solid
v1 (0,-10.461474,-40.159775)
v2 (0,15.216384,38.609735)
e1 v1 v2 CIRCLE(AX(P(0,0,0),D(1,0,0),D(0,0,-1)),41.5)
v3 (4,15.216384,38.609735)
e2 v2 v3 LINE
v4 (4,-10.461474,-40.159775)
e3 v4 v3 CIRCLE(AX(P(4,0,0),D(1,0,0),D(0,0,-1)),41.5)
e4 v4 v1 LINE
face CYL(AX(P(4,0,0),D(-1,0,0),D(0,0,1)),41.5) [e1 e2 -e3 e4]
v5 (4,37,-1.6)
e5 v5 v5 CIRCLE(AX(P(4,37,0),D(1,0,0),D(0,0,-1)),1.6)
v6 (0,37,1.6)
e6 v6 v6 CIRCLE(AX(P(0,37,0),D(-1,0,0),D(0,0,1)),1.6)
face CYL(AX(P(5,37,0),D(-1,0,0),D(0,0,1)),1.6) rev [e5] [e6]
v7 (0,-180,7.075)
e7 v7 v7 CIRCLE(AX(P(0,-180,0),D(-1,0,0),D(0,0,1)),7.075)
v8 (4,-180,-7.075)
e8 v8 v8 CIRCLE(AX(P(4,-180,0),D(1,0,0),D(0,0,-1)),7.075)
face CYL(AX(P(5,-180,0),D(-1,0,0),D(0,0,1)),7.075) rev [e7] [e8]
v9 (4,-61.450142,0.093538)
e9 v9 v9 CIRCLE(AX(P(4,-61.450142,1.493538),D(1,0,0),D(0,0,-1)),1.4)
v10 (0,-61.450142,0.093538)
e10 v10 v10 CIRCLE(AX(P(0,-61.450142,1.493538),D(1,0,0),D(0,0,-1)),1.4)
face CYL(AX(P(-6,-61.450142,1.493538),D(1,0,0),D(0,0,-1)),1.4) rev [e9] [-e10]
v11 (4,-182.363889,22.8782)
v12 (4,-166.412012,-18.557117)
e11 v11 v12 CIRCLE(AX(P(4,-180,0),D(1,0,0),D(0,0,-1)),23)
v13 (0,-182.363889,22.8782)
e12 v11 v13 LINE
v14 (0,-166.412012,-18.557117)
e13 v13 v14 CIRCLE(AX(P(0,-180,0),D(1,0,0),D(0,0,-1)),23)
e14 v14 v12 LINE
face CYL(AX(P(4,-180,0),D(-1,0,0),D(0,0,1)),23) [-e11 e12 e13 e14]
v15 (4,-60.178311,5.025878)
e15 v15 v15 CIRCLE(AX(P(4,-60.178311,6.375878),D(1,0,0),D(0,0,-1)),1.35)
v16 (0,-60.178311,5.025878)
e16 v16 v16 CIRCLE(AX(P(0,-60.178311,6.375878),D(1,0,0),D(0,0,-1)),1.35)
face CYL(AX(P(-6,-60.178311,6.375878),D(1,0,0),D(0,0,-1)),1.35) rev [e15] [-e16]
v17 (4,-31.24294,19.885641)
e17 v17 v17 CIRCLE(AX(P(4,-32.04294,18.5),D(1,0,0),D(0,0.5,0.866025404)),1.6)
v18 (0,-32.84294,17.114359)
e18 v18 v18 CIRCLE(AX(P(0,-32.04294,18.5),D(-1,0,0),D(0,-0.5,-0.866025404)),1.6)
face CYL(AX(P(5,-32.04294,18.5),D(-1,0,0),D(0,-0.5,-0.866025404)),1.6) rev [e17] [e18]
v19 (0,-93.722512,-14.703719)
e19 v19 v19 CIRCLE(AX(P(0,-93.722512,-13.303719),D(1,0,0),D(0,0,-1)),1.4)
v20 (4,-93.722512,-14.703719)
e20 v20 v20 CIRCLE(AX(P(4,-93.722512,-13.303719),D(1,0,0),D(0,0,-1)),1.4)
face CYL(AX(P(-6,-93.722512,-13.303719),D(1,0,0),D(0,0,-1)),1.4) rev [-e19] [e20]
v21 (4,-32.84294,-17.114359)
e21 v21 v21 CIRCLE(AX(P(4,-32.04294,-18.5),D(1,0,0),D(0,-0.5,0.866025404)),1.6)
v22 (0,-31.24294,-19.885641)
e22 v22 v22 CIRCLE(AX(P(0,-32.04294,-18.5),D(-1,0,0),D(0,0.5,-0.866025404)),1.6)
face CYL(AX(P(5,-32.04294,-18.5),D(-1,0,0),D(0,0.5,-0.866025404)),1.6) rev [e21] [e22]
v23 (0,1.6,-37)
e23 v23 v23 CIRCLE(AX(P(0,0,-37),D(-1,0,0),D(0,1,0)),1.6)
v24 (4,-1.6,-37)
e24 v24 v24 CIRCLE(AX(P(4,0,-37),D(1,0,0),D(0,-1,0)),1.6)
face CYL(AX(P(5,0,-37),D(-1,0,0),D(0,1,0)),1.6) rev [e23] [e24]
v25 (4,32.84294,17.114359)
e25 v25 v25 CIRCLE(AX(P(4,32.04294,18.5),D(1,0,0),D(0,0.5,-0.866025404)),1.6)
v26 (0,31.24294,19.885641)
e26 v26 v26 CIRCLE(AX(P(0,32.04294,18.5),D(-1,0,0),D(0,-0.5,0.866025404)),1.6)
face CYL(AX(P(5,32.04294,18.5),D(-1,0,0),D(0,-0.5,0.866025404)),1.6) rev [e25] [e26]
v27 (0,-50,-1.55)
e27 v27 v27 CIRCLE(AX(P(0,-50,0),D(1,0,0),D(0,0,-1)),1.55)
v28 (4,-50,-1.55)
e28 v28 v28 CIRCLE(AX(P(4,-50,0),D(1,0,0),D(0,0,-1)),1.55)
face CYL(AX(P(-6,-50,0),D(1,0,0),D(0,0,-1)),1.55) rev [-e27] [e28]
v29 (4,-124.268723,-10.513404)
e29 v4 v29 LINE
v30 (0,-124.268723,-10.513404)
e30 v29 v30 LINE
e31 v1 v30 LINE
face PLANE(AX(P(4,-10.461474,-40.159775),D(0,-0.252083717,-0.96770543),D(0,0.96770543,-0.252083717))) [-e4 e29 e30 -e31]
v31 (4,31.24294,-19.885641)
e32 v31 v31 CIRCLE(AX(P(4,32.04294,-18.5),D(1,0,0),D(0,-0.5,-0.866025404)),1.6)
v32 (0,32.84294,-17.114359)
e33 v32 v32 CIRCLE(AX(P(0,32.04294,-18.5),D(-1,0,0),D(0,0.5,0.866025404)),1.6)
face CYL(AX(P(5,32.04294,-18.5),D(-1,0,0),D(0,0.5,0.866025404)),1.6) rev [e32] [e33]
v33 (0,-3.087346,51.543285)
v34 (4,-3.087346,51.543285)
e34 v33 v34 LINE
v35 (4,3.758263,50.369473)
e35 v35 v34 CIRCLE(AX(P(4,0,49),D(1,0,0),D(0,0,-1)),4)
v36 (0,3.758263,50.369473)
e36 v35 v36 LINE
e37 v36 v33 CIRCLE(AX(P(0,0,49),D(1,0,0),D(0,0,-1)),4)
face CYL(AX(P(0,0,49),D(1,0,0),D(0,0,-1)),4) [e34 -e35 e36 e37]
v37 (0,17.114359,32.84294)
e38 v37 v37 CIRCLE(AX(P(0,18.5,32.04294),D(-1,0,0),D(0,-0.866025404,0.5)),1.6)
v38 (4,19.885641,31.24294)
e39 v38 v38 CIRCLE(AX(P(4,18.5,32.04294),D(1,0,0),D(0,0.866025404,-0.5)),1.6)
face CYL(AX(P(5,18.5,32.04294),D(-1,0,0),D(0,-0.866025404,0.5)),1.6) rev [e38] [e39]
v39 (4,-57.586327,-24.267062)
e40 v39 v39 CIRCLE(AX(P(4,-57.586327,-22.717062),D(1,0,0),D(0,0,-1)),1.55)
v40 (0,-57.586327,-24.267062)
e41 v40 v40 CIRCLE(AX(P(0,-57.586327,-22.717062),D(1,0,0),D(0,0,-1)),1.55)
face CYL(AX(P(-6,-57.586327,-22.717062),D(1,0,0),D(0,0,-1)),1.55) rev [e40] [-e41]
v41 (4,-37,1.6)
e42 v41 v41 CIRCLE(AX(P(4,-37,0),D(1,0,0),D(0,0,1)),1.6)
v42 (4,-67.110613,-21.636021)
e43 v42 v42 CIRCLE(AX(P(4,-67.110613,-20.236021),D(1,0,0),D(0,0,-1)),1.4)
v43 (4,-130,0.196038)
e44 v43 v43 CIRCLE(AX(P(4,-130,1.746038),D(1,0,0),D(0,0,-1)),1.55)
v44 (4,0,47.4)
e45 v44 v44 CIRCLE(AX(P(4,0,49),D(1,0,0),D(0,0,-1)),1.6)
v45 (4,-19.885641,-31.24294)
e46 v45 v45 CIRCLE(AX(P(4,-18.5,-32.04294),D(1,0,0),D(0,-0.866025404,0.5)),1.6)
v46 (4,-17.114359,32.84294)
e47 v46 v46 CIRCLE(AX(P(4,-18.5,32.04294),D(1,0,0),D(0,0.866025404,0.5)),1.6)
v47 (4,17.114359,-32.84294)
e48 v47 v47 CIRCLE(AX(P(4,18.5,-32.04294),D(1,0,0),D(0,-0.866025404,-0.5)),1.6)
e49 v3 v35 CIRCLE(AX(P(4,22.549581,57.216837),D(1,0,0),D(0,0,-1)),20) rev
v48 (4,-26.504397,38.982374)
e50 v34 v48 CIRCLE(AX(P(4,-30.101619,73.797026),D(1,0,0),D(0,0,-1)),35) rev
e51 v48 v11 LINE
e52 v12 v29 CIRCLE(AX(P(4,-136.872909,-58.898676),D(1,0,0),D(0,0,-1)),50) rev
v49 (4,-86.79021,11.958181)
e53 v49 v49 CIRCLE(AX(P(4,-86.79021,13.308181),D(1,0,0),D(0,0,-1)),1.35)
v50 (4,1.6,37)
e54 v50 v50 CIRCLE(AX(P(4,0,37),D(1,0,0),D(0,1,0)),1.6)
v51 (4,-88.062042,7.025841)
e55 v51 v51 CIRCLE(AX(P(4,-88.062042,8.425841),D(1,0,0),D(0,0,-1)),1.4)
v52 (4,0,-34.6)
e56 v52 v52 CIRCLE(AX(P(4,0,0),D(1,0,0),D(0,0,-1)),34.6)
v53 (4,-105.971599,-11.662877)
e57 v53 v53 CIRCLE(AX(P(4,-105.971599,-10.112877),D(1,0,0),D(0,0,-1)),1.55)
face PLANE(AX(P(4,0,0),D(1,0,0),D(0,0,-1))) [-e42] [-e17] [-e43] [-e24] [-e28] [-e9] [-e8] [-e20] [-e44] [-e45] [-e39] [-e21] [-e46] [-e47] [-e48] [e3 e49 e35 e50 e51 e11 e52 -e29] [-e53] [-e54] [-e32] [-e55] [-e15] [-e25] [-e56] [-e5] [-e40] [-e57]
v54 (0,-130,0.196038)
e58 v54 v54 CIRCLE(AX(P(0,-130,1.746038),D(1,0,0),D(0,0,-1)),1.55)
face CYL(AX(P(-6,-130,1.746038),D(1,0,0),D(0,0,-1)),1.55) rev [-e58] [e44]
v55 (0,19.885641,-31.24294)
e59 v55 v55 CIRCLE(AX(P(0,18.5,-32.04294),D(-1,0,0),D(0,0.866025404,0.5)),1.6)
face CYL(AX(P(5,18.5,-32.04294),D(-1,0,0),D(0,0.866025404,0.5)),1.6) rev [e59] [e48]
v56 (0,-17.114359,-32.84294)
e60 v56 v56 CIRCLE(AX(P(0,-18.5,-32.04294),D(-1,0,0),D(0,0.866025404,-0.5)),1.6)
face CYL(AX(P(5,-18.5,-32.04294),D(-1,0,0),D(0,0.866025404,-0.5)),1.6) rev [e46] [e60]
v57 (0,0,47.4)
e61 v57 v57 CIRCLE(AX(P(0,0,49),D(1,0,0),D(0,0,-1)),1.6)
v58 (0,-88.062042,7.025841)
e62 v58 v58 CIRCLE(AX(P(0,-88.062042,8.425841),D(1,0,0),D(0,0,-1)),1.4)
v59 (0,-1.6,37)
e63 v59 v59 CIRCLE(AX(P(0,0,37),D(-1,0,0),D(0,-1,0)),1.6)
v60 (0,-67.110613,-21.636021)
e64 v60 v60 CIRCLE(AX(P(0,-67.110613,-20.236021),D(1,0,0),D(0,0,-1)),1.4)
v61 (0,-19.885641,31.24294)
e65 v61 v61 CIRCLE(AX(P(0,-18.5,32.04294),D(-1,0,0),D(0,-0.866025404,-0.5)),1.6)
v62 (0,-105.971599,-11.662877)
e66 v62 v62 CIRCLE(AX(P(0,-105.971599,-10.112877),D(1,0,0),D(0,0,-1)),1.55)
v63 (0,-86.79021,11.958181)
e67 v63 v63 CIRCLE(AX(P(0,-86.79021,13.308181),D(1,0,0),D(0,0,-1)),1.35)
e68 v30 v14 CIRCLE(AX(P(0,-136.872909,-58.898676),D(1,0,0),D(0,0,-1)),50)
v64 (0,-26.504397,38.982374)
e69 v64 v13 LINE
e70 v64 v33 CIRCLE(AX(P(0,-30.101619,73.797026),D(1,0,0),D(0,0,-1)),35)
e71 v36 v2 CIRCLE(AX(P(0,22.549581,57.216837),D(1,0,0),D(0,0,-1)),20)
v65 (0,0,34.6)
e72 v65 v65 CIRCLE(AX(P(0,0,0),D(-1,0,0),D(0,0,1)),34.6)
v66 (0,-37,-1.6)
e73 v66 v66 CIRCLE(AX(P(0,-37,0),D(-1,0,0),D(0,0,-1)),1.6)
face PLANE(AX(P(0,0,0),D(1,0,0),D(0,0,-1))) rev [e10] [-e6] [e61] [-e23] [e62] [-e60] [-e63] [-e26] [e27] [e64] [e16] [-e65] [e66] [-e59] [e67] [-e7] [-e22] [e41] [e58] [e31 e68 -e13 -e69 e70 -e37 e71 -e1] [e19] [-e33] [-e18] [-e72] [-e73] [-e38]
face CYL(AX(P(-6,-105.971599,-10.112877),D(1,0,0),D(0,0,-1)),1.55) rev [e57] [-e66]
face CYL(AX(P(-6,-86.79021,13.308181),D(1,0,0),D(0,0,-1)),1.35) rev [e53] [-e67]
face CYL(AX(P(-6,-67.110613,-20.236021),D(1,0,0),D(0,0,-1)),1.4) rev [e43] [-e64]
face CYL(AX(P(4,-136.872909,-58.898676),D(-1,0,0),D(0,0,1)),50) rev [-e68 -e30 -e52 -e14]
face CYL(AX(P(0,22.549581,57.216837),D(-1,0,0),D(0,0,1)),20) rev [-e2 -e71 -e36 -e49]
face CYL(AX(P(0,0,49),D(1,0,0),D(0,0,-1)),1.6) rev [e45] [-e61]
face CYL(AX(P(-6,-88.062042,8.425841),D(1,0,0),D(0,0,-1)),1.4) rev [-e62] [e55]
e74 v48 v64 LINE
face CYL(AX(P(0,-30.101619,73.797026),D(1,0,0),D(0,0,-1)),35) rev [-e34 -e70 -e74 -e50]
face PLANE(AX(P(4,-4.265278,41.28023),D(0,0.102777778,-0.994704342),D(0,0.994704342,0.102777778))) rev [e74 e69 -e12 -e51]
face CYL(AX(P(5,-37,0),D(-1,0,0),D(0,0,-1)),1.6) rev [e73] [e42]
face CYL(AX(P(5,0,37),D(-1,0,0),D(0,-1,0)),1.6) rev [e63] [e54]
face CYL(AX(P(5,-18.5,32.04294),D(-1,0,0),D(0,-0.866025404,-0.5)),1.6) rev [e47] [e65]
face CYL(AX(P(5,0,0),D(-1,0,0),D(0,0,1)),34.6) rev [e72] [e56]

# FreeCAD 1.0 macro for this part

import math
import FreeCAD as App
import Part
import Sketcher

V = App.Vector
Q = App.Units.Quantity


def edges_at(feature, points):
    """Names of the edges that pass closest to the given points."""
    edges = feature.Shape.Edges
    near = lambda p: min(range(len(edges)), key=lambda i: edges[i].distToShape(Part.Vertex(*p))[0])
    return sorted({f"Edge{near(p) + 1}" for p in points})

doc = App.newDocument("Part")
body = doc.addObject("PartDesign::Body", "Body")

sketch1 = doc.addObject("Sketcher::SketchObject", "Sketch")
body.addObject(sketch1)
sketch1.AttachmentSupport = (doc.YZ_Plane, [""])
sketch1.MapMode = "FlatFace"
sketch1.addGeometry([
    Part.LineSegment(V(-4.265278, 41.28023, 0), V(-182.363889, 22.8782, 0)),
    Part.ArcOfCircle(Part.Circle(V(-180, 0, 0), V(0, 0, 1), 23), math.radians(95.89915), math.radians(355.098678)),
    Part.LineSegment(V(-157.084104, -1.965118, 0), V(-10.461474, -40.159775, 0)),
    Part.ArcOfCircle(Part.Circle(V(0, 0, 0), V(0, 0, 1), 41.5), math.radians(-104.60085), math.radians(95.89915)),
], False)
sketch1.addConstraint([
    Sketcher.Constraint("Tangent", 0, 2, 1, 1),
    Sketcher.Constraint("Coincident", 1, 2, 2, 1),
    Sketcher.Constraint("Tangent", 2, 2, 3, 1),
    Sketcher.Constraint("Tangent", 3, 2, 0, 1),
    Sketcher.Constraint("Coincident", 3, 3, -1, 1),
    Sketcher.Constraint("PointOnObject", 1, 3, -1),
    Sketcher.Constraint("Radius", 1, Q("23 mm")),
    Sketcher.Constraint("Radius", 3, Q("41.5 mm")),
    Sketcher.Constraint("DistanceX", 1, 3, -1, 1, Q("180 mm")),
    Sketcher.Constraint("DistanceX", 1, 2, 2, 2, Q("146.622629 mm")),
])
pad1 = doc.addObject("PartDesign::Pad", "Pad")
body.addObject(pad1)
pad1.Profile = sketch1
pad1.Length = 4

sketch2 = doc.addObject("Sketcher::SketchObject", "Sketch001")
body.addObject(sketch2)
sketch2.AttachmentSupport = (doc.YZ_Plane, [""])
sketch2.MapMode = "FlatFace"
sketch2.addGeometry([
    Part.Circle(V(0, 0, 0), V(0, 0, 1), 34.6),
    Part.Circle(V(-180, 0, 0), V(0, 0, 1), 7.075),
], False)
sketch2.addConstraint([
    Sketcher.Constraint("Coincident", 0, 3, -1, 1),
    Sketcher.Constraint("PointOnObject", 1, 3, -1),
    Sketcher.Constraint("Diameter", 0, Q("69.2 mm")),
    Sketcher.Constraint("Diameter", 1, Q("14.15 mm")),
    Sketcher.Constraint("DistanceX", 1, 3, -1, 1, Q("180 mm")),
])
pocket1 = doc.addObject("PartDesign::Pocket", "Pocket")
body.addObject(pocket1)
pocket1.Profile = sketch2
pocket1.Length = 5
pocket1.Reversed = True

sketch3 = doc.addObject("Sketcher::SketchObject", "Sketch002")
body.addObject(sketch3)
sketch3.AttachmentSupport = (doc.YZ_Plane, [""])
sketch3.MapMode = "FlatFace"
sketch3.addGeometry(Part.Circle(V(37, 0, 0), V(0, 0, 1), 1.6), False)
sketch3.addConstraint([
    Sketcher.Constraint("PointOnObject", 0, 3, -1),
    Sketcher.Constraint("Diameter", 0, Q("3.2 mm")),
    Sketcher.Constraint("DistanceX", -1, 1, 0, 3, Q("37 mm")),
])
pocket2 = doc.addObject("PartDesign::Pocket", "Pocket001")
body.addObject(pocket2)
pocket2.Profile = sketch3
pocket2.Length = 5
pocket2.Reversed = True
doc.recompute()

polarpattern = doc.addObject("PartDesign::PolarPattern", "PolarPattern")
body.addObject(polarpattern)
polarpattern.Originals = [pocket2]
polarpattern.Axis = (doc.X_Axis, [""])
polarpattern.Angle = 360
polarpattern.Occurrences = 12
body.Tip = polarpattern
doc.recompute()

fillet = doc.addObject("PartDesign::Fillet", "Fillet")
body.addObject(fillet)
fillet.Base = (polarpattern, edges_at(polarpattern, [(2, -157.084, -1.965)]))
fillet.Radius = 50

sketch4 = doc.addObject("Sketcher::SketchObject", "Sketch003")
body.addObject(sketch4)
sketch4.AttachmentSupport = (doc.YZ_Plane, [""])
sketch4.MapMode = "FlatFace"
sketch4.AttachmentOffset = App.Placement(V(0, 0, 4), App.Rotation())
sketch4.addGeometry([
    Part.Circle(V(-57.586327, -22.717062, 0), V(0, 0, 1), 1.55),
    Part.Circle(V(-105.971599, -10.112877, 0), V(0, 0, 1), 1.55),
], False)
sketch4.addConstraint([
    Sketcher.Constraint("Equal", 0, 1),
    Sketcher.Constraint("Diameter", 0, Q("3.1 mm")),
    Sketcher.Constraint("DistanceX", 1, 3, -1, 1, Q("105.971599 mm")),
    Sketcher.Constraint("DistanceX", 1, 3, 0, 3, Q("48.385272 mm")),
    Sketcher.Constraint("DistanceY", 0, 3, -1, 1, Q("22.717062 mm")),
    Sketcher.Constraint("DistanceY", 1, 3, -1, 1, Q("10.112877 mm")),
])
pocket3 = doc.addObject("PartDesign::Pocket", "Pocket002")
body.addObject(pocket3)
pocket3.Profile = sketch4
pocket3.Length = 10

sketch5 = doc.addObject("Sketcher::SketchObject", "Sketch004")
body.addObject(sketch5)
sketch5.AttachmentSupport = (doc.YZ_Plane, [""])
sketch5.MapMode = "FlatFace"
sketch5.AttachmentOffset = App.Placement(V(0, 0, 4), App.Rotation())
sketch5.addGeometry([
    Part.LineSegment(V(4, 41.306779, 0), V(4, 49, 0)),
    Part.ArcOfCircle(Part.Circle(V(0, 49, 0), V(0, 0, 1), 4), math.radians(0), math.radians(180)),
    Part.LineSegment(V(-4, 49, 0), V(-4, 41.306779, 0)),
    Part.ArcOfCircle(Part.Circle(V(0, 0, 0), V(0, 0, 1), 41.5), math.radians(84.468928), math.radians(95.531072)),
    Part.Circle(V(0, 49, 0), V(0, 0, 1), 1.6),
], False)
sketch5.addConstraint([
    Sketcher.Constraint("Tangent", 0, 2, 1, 1),
    Sketcher.Constraint("Tangent", 1, 2, 2, 1),
    Sketcher.Constraint("Coincident", 2, 2, 3, 2),
    Sketcher.Constraint("Coincident", 3, 1, 0, 1),
    Sketcher.Constraint("Vertical", 0),
    Sketcher.Constraint("Vertical", 2),
    Sketcher.Constraint("Coincident", 3, 3, -1, 1),
    Sketcher.Constraint("Coincident", 4, 3, 1, 3),
    Sketcher.Constraint("PointOnObject", 1, 3, -2),
    Sketcher.Constraint("Radius", 1, Q("4 mm")),
    Sketcher.Constraint("Diameter", 4, Q("3.2 mm")),
    Sketcher.Constraint("Radius", 3, Q("41.5 mm")),
    Sketcher.Constraint("DistanceY", -1, 1, 1, 3, Q("49 mm")),
])
pad2 = doc.addObject("PartDesign::Pad", "Pad001")
body.addObject(pad2)
pad2.Profile = sketch5
pad2.Length = 4
pad2.Reversed = True
doc.recompute()

fillet2 = doc.addObject("PartDesign::Fillet", "Fillet001")
body.addObject(fillet2)
fillet2.Base = (pad2, edges_at(pad2, [(2, 4, 41.307)]))
fillet2.Radius = 20

sketch6 = doc.addObject("Sketcher::SketchObject", "Sketch005")
body.addObject(sketch6)
sketch6.AttachmentSupport = (doc.YZ_Plane, [""])
sketch6.MapMode = "FlatFace"
sketch6.AttachmentOffset = App.Placement(V(0, 0, 4), App.Rotation())
sketch6.addGeometry([
    Part.Circle(V(-50, 0, 0), V(0, 0, 1), 1.55),
    Part.Circle(V(-130, 1.746038, 0), V(0, 0, 1), 1.55),
], False)
sketch6.addConstraint([
    Sketcher.Constraint("Equal", 0, 1),
    Sketcher.Constraint("PointOnObject", 0, 3, -1),
    Sketcher.Constraint("Diameter", 0, Q("3.1 mm")),
    Sketcher.Constraint("DistanceX", 0, 3, -1, 1, Q("50 mm")),
    Sketcher.Constraint("DistanceX", 1, 3, -1, 1, Q("130 mm")),
    Sketcher.Constraint("DistanceY", -1, 1, 1, 3, Q("1.746038 mm")),
])
pocket4 = doc.addObject("PartDesign::Pocket", "Pocket003")
body.addObject(pocket4)
pocket4.Profile = sketch6
pocket4.Length = 10
doc.recompute()

fillet3 = doc.addObject("PartDesign::Fillet", "Fillet002")
body.addObject(fillet3)
fillet3.Base = (pocket4, edges_at(pocket4, [(2, -4, 41.307)]))
fillet3.Radius = 35

sketch7 = doc.addObject("Sketcher::SketchObject", "Sketch006")
body.addObject(sketch7)
sketch7.AttachmentSupport = (doc.YZ_Plane, [""])
sketch7.MapMode = "FlatFace"
sketch7.AttachmentOffset = App.Placement(V(0, 0, 4), App.Rotation())
sketch7.addGeometry([
    Part.Circle(V(-61.450142, 1.493538, 0), V(0, 0, 1), 1.4),
    Part.Circle(V(-67.110613, -20.236021, 0), V(0, 0, 1), 1.4),
    Part.Circle(V(-88.062042, 8.425841, 0), V(0, 0, 1), 1.4),
    Part.Circle(V(-93.722512, -13.303719, 0), V(0, 0, 1), 1.4),
], False)
sketch7.addConstraint([
    Sketcher.Constraint("Equal", 0, 1),
    Sketcher.Constraint("Equal", 1, 2),
    Sketcher.Constraint("Equal", 2, 3),
    Sketcher.Constraint("Diameter", 0, Q("2.8 mm")),
    Sketcher.Constraint("DistanceX", 2, 3, 0, 3, Q("26.611899 mm")),
    Sketcher.Constraint("DistanceX", 3, 3, 1, 3, Q("26.611899 mm")),
    Sketcher.Constraint("DistanceY", -1, 1, 0, 3, Q("1.493538 mm")),
    Sketcher.Constraint("DistanceY", 1, 3, -1, 1, Q("20.236021 mm")),
    Sketcher.Constraint("DistanceX", 2, 3, -1, 1, Q("88.062042 mm")),
    Sketcher.Constraint("DistanceY", -1, 1, 2, 3, Q("8.425841 mm")),
    Sketcher.Constraint("DistanceY", 3, 3, -1, 1, Q("13.303719 mm")),
    Sketcher.Constraint("DistanceX", 1, 3, 0, 3, Q("5.660471 mm")),
])
pocket5 = doc.addObject("PartDesign::Pocket", "Pocket004")
body.addObject(pocket5)
pocket5.Profile = sketch7
pocket5.Length = 10

sketch8 = doc.addObject("Sketcher::SketchObject", "Sketch007")
body.addObject(sketch8)
sketch8.AttachmentSupport = (doc.YZ_Plane, [""])
sketch8.MapMode = "FlatFace"
sketch8.AttachmentOffset = App.Placement(V(0, 0, 4), App.Rotation())
sketch8.addGeometry([
    Part.Circle(V(-60.178311, 6.375878, 0), V(0, 0, 1), 1.35),
    Part.Circle(V(-86.79021, 13.308181, 0), V(0, 0, 1), 1.35),
], False)
sketch8.addConstraint([
    Sketcher.Constraint("Equal", 0, 1),
    Sketcher.Constraint("Diameter", 0, Q("2.7 mm")),
    Sketcher.Constraint("DistanceX", 1, 3, 0, 3, Q("26.611899 mm")),
    Sketcher.Constraint("DistanceX", 0, 3, -1, 1, Q("60.178311 mm")),
    Sketcher.Constraint("DistanceY", -1, 1, 0, 3, Q("6.375878 mm")),
    Sketcher.Constraint("DistanceY", -1, 1, 1, 3, Q("13.308181 mm")),
])
pocket6 = doc.addObject("PartDesign::Pocket", "Pocket005")
body.addObject(pocket6)
pocket6.Profile = sketch8
pocket6.Length = 10

doc.recompute()
